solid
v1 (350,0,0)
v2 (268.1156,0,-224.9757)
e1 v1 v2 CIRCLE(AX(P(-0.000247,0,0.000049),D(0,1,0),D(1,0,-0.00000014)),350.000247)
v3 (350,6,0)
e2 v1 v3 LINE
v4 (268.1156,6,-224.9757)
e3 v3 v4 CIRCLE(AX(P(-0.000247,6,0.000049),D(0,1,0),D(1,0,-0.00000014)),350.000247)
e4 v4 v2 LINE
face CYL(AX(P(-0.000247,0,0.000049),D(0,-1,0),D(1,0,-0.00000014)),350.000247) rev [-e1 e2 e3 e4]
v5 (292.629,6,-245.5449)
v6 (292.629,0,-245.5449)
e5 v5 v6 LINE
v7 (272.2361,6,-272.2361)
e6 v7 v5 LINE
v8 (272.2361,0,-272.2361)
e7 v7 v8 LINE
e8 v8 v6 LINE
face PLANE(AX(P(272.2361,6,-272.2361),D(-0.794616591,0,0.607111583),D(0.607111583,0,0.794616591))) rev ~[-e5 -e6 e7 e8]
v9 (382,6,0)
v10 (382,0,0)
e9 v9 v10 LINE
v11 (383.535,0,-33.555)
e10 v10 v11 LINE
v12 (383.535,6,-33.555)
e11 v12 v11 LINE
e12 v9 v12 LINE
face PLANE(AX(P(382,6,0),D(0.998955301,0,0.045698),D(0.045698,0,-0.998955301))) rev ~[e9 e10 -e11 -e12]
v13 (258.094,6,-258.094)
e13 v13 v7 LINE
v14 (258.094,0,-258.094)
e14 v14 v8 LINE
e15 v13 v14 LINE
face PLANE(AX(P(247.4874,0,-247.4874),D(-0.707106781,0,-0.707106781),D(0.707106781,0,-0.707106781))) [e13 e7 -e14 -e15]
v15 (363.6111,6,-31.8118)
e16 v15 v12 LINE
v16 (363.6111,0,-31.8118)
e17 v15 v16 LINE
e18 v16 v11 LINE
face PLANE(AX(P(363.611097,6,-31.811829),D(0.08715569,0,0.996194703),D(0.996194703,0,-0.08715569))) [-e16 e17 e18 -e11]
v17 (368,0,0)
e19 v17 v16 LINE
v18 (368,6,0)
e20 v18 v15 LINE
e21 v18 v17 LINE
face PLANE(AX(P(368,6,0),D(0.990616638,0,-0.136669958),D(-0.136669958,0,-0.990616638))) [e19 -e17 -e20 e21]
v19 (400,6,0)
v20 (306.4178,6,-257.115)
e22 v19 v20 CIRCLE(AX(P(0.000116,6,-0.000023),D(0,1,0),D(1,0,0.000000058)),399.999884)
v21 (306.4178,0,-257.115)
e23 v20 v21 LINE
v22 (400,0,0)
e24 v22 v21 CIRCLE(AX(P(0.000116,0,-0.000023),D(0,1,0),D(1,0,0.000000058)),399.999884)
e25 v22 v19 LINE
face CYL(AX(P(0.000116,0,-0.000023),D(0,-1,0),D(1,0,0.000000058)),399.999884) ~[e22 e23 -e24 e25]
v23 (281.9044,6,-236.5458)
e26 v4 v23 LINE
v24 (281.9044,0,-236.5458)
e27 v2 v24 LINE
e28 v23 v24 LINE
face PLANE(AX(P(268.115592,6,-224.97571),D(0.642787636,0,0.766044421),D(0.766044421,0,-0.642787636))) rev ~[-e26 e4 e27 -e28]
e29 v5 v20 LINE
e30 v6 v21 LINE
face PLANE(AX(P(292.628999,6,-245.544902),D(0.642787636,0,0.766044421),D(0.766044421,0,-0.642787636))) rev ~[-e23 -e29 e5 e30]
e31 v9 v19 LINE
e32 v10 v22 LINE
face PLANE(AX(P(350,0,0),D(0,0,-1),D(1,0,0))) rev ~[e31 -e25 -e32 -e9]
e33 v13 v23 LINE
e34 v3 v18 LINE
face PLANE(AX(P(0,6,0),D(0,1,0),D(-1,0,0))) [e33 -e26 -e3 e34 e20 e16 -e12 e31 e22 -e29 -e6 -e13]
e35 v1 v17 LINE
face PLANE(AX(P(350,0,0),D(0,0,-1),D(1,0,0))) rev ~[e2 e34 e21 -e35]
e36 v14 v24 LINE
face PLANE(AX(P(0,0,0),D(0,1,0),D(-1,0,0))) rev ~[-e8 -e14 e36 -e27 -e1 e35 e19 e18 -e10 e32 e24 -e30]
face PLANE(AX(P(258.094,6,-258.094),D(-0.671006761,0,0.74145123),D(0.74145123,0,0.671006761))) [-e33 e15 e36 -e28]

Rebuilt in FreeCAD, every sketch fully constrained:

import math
import FreeCAD as App
import Part
import Sketcher

V = App.Vector
Q = App.Units.Quantity

doc = App.newDocument("Part")
params = doc.addObject("Spreadsheet::Sheet", "Params")
for row, (alias, value) in enumerate([
    ("sketch1_radius", "350 mm"),
    ("sketch1_radius2", "400 mm"),
    ("pad1_length", "6 mm"),
    ("sketch2_length", "18 mm"),
    ("sketch2_length2", "15 mm"),
    ("sketch2_radius", "400 mm"),
    ("sketch2_radius2", "350 mm"),
    ("sketch2_length3", "33.59 mm"),
    ("pocket1_length", "6 mm"),
    ("sketch3_width", "14 mm"),
    ("sketch3_length", "20 mm"),
    ("sketch3_length2", "33.59 mm"),
    ("pocket2_length", "6 mm"),
], start=1):
    params.set(f"A{row}", alias)
    params.set(f"B{row}", "=" + value)
    params.setAlias(f"B{row}", alias)

body = doc.addObject("PartDesign::Body", "Body")

# Sketch on XZ plane
sketch1 = body.newObject("Sketcher::SketchObject", "Sketch")
sketch1.AttachmentSupport = (doc.getObject("XZ_Plane"), [""])
sketch1.MapMode = "FlatFace"
sketch1.addGeometry([
    Part.ArcOfCircle(Part.Circle(V(0, 0, 0), V(0, 0, 1), 350), math.radians(-45), math.radians(0)),
    Part.LineSegment(V(350, 0, 0), V(400, 0, 0)),
    Part.ArcOfCircle(Part.Circle(V(0, 0, 0), V(0, 0, 1), 400), math.radians(-45), math.radians(0)),
    Part.LineSegment(V(282.8427, -282.8427, 0), V(247.4874, -247.4874, 0)),
], False)
sketch1.addConstraint([
    Sketcher.Constraint("Coincident", 0, 2, 1, 1),
    Sketcher.Constraint("Coincident", 1, 2, 2, 2),
    Sketcher.Constraint("Coincident", 2, 1, 3, 1),
    Sketcher.Constraint("Coincident", 3, 2, 0, 1),
    Sketcher.Constraint("Horizontal", 1),
    Sketcher.Constraint("Coincident", 0, 3, -1, 1),
    Sketcher.Constraint("Coincident", 2, 3, -1, 1),
    Sketcher.Constraint("PointOnObject", 0, 2, -1),
    Sketcher.Constraint("Radius", 0, 350.0),
    Sketcher.Constraint("Radius", 2, 400.0),
    Sketcher.Constraint("Angle", 3, Q("135 deg")),
    Sketcher.Constraint("DistanceX", -1, 1, 3, 2, 247.4874),
])
sketch1.setExpression("Constraints[8]", "Params.sketch1_radius")
sketch1.setExpression("Constraints[9]", "Params.sketch1_radius2")
pad1 = body.newObject("PartDesign::Pad", "Pad")
pad1.Profile = sketch1
pad1.setExpression("Length", "Params.pad1_length")
pad1.Reversed = True

# Sketch on XZ plane
sketch2 = body.newObject("Sketcher::SketchObject", "Sketch001")
sketch2.AttachmentSupport = (doc.getObject("XZ_Plane"), [""])
sketch2.MapMode = "FlatFace"
sketch2.AttachmentOffset = App.Placement(V(0, 0, -6), App.Rotation())
sketch2.addGeometry([
    Part.LineSegment(V(292.628999, -245.544902, 0), V(306.41776, -257.115047, 0)),  # 0
    Part.ArcOfCircle(Part.Circle(V(0, 0, 0), V(0, 0, 1), 400), math.radians(-45), math.radians(-39.999993)),  # 1
    Part.LineSegment(V(282.8427, -282.8427, 0), V(272.2361, -272.2361, 0)),  # 2
    Part.LineSegment(V(272.2361, -272.2361, 0), V(292.629, -245.5449, 0)),  # 3
    Part.LineSegment(V(268.115592, -224.97571, 0), V(281.904354, -236.545855, 0)),  # 4
    Part.LineSegment(V(281.9044, -236.5458, 0), V(258.094, -258.094, 0)),  # 5
    Part.LineSegment(V(258.094, -258.094, 0), V(247.4874, -247.4874, 0)),  # 6
    Part.ArcOfCircle(Part.Circle(V(0, 0, 0), V(0, 0, 1), 350), math.radians(-45), math.radians(-40)),  # 7
], False)
sketch2.addConstraint([
    Sketcher.Constraint("Coincident", 0, 2, 1, 2),
    Sketcher.Constraint("Coincident", 1, 1, 2, 1),
    Sketcher.Constraint("Coincident", 2, 2, 3, 1),
    Sketcher.Constraint("Coincident", 3, 2, 0, 1),
    Sketcher.Constraint("Coincident", 4, 2, 5, 1),
    Sketcher.Constraint("Coincident", 5, 2, 6, 1),
    Sketcher.Constraint("Coincident", 6, 2, 7, 1),
    Sketcher.Constraint("Coincident", 7, 2, 4, 1),
    Sketcher.Constraint("Coincident", 1, 3, -1, 1),
    Sketcher.Constraint("Coincident", 7, 3, -1, 1),
    Sketcher.Constraint("Parallel", 0, 4),
    Sketcher.Constraint("Parallel", 2, 6),
    Sketcher.Constraint("Equal", 0, 4),
    Sketcher.Constraint("Equal", 2, 6),
    Sketcher.Constraint("Distance", 0, 18.0),
    Sketcher.Constraint("Distance", 2, 15.0),
    Sketcher.Constraint("Radius", 1, 400.0),
    Sketcher.Constraint("Radius", 7, 350.0),
    Sketcher.Constraint("Angle", 0, Q("-40 deg")),
    Sketcher.Constraint("Angle", 2, Q("135 deg")),
    Sketcher.Constraint("Angle", 3, Q("52.619 deg")),
    Sketcher.Constraint("Distance", 3, 33.59),
    Sketcher.Constraint("DistanceX", -1, 1, 5, 2, 258.094),
    Sketcher.Constraint("DistanceY", 3, 2, 4, 2, 8.999),
])
sketch2.setExpression("Constraints[14]", "Params.sketch2_length")
sketch2.setExpression("Constraints[15]", "Params.sketch2_length2")
sketch2.setExpression("Constraints[16]", "Params.sketch2_radius")
sketch2.setExpression("Constraints[17]", "Params.sketch2_radius2")
sketch2.setExpression("Constraints[21]", "Params.sketch2_length3")
pocket1 = body.newObject("PartDesign::Pocket", "Pocket")
pocket1.Profile = sketch2
pocket1.setExpression("Length", "Params.pocket1_length")
pocket1.Reversed = True

# Sketch on XZ plane
sketch3 = body.newObject("Sketcher::SketchObject", "Sketch002")
sketch3.AttachmentSupport = (doc.getObject("XZ_Plane"), [""])
sketch3.MapMode = "FlatFace"
sketch3.AttachmentOffset = App.Placement(V(0, 0, -6), App.Rotation())
sketch3.addGeometry([
    Part.LineSegment(V(368, 0, 0), V(382, 0, 0)),
    Part.LineSegment(V(382, 0, 0), V(383.535, -33.555, 0)),
    Part.LineSegment(V(383.535005, -33.554944, 0), V(363.611097, -31.811829, 0)),
    Part.LineSegment(V(363.6111, -31.8118, 0), V(368, 0, 0)),
], False)
sketch3.addConstraint([
    Sketcher.Constraint("Coincident", 0, 2, 1, 1),
    Sketcher.Constraint("Coincident", 1, 2, 2, 1),
    Sketcher.Constraint("Coincident", 2, 2, 3, 1),
    Sketcher.Constraint("Coincident", 3, 2, 0, 1),
    Sketcher.Constraint("Horizontal", 0),
    Sketcher.Constraint("PointOnObject", 0, 2, -1),
    Sketcher.Constraint("DistanceX", 0, 1, 0, 2, 14.0),
    Sketcher.Constraint("Distance", 2, 20.0),
    Sketcher.Constraint("Angle", 2, Q("175 deg")),
    Sketcher.Constraint("DistanceX", -1, 1, 0, 2, 382.0),
    Sketcher.Constraint("Angle", 1, Q("-87.3808 deg")),
    Sketcher.Constraint("Distance", 1, 33.59),
])
sketch3.setExpression("Constraints[6]", "Params.sketch3_width")
sketch3.setExpression("Constraints[7]", "Params.sketch3_length")
sketch3.setExpression("Constraints[11]", "Params.sketch3_length2")
pocket2 = body.newObject("PartDesign::Pocket", "Pocket001")
pocket2.Profile = sketch3
pocket2.setExpression("Length", "Params.pocket2_length")
pocket2.Reversed = True

doc.recompute()
